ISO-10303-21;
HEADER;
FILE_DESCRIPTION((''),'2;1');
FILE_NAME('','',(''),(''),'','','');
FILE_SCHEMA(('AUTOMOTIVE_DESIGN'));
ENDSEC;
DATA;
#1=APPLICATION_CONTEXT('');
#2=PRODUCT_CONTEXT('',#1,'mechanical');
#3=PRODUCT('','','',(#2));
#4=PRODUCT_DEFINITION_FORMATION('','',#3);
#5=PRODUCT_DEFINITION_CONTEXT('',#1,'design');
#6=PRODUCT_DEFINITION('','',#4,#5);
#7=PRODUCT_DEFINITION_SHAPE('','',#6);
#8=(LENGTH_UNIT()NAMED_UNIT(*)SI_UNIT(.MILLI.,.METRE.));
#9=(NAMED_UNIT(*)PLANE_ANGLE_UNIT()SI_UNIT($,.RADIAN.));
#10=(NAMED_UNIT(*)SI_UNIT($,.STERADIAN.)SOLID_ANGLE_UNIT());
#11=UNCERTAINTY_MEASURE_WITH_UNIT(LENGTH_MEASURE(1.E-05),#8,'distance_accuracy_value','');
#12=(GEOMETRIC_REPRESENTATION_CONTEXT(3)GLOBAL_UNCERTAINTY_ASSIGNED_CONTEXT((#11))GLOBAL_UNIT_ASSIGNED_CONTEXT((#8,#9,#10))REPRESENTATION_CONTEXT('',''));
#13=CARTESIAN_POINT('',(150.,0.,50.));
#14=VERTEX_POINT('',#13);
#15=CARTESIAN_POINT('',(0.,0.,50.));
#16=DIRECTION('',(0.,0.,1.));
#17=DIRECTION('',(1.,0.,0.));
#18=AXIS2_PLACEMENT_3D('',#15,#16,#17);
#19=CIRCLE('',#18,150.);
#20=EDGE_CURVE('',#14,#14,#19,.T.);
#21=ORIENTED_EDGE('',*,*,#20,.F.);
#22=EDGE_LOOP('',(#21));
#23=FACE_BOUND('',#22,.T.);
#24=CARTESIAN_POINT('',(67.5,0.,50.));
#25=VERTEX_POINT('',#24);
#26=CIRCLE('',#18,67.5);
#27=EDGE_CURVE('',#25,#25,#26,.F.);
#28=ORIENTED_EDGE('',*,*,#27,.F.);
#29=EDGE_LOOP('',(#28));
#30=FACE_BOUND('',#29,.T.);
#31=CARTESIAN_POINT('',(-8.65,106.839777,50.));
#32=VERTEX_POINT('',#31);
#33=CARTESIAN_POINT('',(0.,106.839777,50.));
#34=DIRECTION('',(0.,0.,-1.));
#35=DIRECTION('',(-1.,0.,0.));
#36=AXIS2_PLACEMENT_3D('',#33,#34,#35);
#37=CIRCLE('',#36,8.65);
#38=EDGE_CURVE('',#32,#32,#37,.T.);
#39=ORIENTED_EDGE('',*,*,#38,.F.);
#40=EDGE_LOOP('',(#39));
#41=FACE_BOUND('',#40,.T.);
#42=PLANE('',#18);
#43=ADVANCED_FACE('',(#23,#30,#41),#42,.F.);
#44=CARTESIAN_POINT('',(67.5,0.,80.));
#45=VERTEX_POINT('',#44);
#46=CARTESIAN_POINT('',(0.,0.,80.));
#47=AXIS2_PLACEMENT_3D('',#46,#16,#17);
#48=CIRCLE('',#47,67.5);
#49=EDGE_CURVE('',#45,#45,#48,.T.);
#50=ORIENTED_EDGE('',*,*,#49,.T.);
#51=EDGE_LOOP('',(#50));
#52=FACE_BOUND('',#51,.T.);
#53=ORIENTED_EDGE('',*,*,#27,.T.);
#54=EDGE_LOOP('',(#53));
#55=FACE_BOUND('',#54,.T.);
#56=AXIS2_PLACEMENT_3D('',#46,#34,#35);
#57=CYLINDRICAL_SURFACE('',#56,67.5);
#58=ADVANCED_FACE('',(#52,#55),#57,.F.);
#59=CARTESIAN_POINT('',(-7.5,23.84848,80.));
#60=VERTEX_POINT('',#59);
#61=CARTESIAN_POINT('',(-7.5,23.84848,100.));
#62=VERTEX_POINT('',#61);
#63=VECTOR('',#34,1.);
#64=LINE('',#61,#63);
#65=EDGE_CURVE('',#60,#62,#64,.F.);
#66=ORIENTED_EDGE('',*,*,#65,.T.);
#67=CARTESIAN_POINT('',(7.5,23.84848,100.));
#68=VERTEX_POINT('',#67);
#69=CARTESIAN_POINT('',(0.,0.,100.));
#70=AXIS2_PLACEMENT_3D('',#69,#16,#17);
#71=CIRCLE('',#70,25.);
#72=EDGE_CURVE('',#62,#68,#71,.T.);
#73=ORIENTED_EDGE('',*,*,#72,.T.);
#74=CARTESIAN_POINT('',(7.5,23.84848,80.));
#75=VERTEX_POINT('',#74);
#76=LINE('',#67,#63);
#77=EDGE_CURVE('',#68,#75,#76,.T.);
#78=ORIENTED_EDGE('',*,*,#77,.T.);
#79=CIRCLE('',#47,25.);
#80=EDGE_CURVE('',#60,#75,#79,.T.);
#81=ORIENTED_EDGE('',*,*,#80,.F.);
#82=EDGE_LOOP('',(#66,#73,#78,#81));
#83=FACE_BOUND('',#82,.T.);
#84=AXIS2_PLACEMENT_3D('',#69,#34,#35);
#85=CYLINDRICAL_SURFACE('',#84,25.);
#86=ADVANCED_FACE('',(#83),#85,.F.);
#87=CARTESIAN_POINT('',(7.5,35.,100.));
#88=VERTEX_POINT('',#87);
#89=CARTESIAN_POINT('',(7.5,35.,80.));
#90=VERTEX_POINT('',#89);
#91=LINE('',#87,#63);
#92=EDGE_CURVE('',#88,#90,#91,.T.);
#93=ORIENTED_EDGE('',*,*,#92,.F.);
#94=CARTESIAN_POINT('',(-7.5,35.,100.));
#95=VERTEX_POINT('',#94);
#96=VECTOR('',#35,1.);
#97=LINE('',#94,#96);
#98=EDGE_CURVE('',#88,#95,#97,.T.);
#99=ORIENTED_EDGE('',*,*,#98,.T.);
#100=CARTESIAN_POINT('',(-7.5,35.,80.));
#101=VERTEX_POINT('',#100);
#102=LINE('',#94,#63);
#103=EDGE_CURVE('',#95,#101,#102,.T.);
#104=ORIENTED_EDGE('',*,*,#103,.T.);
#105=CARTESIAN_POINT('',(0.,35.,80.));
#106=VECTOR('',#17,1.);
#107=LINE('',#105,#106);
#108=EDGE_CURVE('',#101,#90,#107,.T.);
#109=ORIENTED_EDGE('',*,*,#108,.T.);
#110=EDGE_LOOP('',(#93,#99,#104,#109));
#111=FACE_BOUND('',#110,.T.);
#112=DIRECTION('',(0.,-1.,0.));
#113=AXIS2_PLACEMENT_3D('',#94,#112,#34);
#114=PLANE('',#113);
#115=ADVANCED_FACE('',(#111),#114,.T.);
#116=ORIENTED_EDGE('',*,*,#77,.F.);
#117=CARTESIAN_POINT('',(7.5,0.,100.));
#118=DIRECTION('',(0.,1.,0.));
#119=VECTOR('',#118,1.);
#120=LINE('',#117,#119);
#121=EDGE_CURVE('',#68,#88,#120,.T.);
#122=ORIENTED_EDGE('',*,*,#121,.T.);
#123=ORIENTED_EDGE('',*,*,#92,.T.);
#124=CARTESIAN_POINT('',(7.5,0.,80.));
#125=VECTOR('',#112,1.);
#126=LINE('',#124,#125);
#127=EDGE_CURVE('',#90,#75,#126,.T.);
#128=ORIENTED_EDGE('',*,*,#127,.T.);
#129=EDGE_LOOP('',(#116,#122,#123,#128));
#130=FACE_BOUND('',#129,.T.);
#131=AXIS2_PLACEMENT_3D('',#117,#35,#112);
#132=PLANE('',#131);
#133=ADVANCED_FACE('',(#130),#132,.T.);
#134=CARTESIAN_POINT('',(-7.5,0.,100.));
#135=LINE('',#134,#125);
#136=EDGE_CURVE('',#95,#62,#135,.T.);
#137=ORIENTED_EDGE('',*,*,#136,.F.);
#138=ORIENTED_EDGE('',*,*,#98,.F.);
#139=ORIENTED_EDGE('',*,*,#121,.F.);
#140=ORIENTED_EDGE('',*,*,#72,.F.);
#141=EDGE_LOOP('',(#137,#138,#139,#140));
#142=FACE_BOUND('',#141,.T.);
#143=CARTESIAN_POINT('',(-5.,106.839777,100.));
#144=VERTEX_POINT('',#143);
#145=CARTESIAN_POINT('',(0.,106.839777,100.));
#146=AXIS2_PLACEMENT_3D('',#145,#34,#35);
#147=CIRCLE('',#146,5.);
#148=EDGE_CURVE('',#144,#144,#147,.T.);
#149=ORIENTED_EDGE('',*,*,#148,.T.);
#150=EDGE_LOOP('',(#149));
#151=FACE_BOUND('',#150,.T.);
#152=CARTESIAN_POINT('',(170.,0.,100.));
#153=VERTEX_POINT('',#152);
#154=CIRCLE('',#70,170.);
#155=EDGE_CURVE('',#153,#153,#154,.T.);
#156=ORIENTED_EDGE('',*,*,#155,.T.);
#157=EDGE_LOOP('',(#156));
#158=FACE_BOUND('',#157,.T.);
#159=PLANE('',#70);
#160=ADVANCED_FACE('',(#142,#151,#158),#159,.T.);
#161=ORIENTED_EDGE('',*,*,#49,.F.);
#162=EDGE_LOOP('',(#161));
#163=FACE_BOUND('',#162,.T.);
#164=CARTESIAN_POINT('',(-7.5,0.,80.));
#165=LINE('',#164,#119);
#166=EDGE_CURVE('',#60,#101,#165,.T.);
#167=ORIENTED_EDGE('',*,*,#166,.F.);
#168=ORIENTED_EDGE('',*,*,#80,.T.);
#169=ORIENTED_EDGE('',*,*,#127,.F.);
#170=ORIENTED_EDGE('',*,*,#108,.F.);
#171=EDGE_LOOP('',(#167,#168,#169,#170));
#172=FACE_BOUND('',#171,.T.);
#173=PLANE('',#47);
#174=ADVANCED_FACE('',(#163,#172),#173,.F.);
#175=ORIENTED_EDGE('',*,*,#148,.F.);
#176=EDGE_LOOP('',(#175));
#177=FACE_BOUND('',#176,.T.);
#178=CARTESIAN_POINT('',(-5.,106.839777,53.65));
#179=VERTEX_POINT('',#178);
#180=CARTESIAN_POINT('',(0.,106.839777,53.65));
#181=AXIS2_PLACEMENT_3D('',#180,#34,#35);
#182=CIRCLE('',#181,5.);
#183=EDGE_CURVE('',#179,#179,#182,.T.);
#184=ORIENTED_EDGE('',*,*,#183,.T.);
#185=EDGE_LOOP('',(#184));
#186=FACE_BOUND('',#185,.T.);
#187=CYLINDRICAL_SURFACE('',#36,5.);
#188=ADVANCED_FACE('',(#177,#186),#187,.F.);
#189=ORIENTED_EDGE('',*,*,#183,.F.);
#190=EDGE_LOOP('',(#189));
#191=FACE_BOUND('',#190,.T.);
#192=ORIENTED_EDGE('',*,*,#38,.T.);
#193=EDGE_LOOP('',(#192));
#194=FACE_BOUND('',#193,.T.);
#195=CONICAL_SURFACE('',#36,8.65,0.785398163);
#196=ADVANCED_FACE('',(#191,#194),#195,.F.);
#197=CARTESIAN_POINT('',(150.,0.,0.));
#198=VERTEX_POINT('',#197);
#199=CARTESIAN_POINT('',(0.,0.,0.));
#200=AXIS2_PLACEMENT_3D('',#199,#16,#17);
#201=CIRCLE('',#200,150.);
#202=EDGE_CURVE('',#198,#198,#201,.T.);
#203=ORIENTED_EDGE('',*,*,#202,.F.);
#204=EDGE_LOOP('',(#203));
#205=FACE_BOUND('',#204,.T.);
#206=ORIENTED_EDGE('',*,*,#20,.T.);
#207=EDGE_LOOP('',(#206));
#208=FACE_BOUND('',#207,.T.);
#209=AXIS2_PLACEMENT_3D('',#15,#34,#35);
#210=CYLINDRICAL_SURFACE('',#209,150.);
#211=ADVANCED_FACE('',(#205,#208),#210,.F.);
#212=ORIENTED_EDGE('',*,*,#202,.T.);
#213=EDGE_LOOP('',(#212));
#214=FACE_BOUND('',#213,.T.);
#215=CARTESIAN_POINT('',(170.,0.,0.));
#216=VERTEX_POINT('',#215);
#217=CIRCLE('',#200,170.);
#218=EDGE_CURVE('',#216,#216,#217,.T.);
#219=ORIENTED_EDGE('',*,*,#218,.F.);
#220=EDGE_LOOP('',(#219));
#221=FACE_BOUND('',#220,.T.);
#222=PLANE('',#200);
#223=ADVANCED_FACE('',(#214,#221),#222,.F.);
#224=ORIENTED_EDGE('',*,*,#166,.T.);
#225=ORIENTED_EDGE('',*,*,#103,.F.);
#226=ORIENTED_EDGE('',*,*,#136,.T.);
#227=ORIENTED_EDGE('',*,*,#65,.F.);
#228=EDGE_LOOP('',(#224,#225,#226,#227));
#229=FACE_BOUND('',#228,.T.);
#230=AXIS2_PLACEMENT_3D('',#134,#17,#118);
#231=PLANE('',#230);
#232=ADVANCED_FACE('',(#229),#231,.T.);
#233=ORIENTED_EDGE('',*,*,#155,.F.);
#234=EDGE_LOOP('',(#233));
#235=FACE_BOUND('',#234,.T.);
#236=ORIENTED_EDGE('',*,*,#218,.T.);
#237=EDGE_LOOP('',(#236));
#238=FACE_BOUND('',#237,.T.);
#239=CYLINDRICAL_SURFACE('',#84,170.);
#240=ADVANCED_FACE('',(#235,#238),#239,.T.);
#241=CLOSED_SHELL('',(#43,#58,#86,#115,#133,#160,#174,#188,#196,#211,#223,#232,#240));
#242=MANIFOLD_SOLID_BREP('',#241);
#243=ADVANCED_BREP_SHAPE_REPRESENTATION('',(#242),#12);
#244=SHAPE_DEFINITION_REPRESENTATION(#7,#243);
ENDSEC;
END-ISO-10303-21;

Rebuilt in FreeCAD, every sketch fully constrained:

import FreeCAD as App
import Part
import Sketcher

V = App.Vector

doc = App.newDocument("Part")
body = doc.addObject("PartDesign::Body", "Body")

# Sketch on XY plane
sketch1 = body.newObject("Sketcher::SketchObject", "Sketch")
sketch1.AttachmentSupport = (doc.getObject("XY_Plane"), [""])
sketch1.MapMode = "FlatFace"
sketch1.addGeometry([
    Part.Circle(V(0, 0, 0), V(0, 0, 1), 170),
    Part.Circle(V(0, 0, 0), V(0, 0, 1), 25),
], False)
sketch1.addConstraint([
    Sketcher.Constraint("Coincident", 0, 3, -1, 1),
    Sketcher.Constraint("Coincident", 1, 3, -1, 1),
    Sketcher.Constraint("Diameter", 0, 340.0),
    Sketcher.Constraint("Diameter", 1, 50.0),
])
pad1 = body.newObject("PartDesign::Pad", "Pad")
pad1.Profile = sketch1
pad1.Length = 100

# Sketch on XY plane
sketch2 = body.newObject("Sketcher::SketchObject", "Sketch001")
sketch2.AttachmentSupport = (doc.getObject("XY_Plane"), [""])
sketch2.MapMode = "FlatFace"
sketch2.addGeometry(Part.Circle(V(0, 0, 0), V(0, 0, 1), 150), False)
sketch2.addConstraint([
    Sketcher.Constraint("Coincident", 0, 3, -1, 1),
    Sketcher.Constraint("Diameter", 0, 300.0),
])
pocket1 = body.newObject("PartDesign::Pocket", "Pocket")
pocket1.Profile = sketch2
pocket1.Length = 50
pocket1.Reversed = True

# Sketch on XY plane
sketch3 = body.newObject("Sketcher::SketchObject", "Sketch002")
sketch3.AttachmentSupport = (doc.getObject("XY_Plane"), [""])
sketch3.MapMode = "FlatFace"
sketch3.addGeometry(Part.Circle(V(0, 0, 0), V(0, 0, 1), 67.5), False)
sketch3.addConstraint([
    Sketcher.Constraint("Coincident", 0, 3, -1, 1),
    Sketcher.Constraint("Diameter", 0, 135.0),
])
pocket2 = body.newObject("PartDesign::Pocket", "Pocket001")
pocket2.Profile = sketch3
pocket2.Length = 80
pocket2.Reversed = True

# Sketch on XY plane
sketch4 = body.newObject("Sketcher::SketchObject", "Sketch003")
sketch4.AttachmentSupport = (doc.getObject("XY_Plane"), [""])
sketch4.MapMode = "FlatFace"
sketch4.addGeometry([
    Part.LineSegment(V(-7.5, 35, 0), V(-7.5, 0, 0)),
    Part.LineSegment(V(-7.5, 0, 0), V(7.5, 0, 0)),
    Part.LineSegment(V(7.5, 0, 0), V(7.5, 35, 0)),
    Part.LineSegment(V(7.5, 35, 0), V(-7.5, 35, 0)),
], False)
sketch4.addConstraint([
    Sketcher.Constraint("Coincident", 0, 2, 1, 1),
    Sketcher.Constraint("Coincident", 1, 2, 2, 1),
    Sketcher.Constraint("Coincident", 2, 2, 3, 1),
    Sketcher.Constraint("Coincident", 3, 2, 0, 1),
    Sketcher.Constraint("Vertical", 0),
    Sketcher.Constraint("Horizontal", 1),
    Sketcher.Constraint("Vertical", 2),
    Sketcher.Constraint("Horizontal", 3),
    Sketcher.Constraint("Symmetric", 0, 2, 1, 2, -1, 1),
    Sketcher.Constraint("DistanceX", 1, 1, 1, 2, 15.0),
    Sketcher.Constraint("DistanceY", 0, 2, 0, 1, 35.0),
])
pocket3 = body.newObject("PartDesign::Pocket", "Pocket002")
pocket3.Profile = sketch4
pocket3.Type = "ThroughAll"
pocket3.Reversed = True

# Sketch on XY plane
sketch5 = body.newObject("Sketcher::SketchObject", "Sketch004")
sketch5.AttachmentSupport = (doc.getObject("XY_Plane"), [""])
sketch5.MapMode = "FlatFace"
sketch5.AttachmentOffset = App.Placement(V(0, 0, 50), App.Rotation())
sketch5.addGeometry(Part.Circle(V(0, 106.839777, 0), V(0, 0, 1), 5), False)
sketch5.addConstraint([
    Sketcher.Constraint("PointOnObject", 0, 3, -2),
    Sketcher.Constraint("Diameter", 0, 10.0),
    Sketcher.Constraint("DistanceY", -1, 1, 0, 3, 106.839777),
])
doc.recompute()
hole = body.newObject("PartDesign::Hole", "Hole")
hole.Profile = sketch5
hole.ThreadType = "None"
hole.Diameter = 10
hole.DepthType = "ThroughAll"
hole.HoleCutType = "Countersink"
hole.HoleCutDiameter = 17.3
hole.HoleCutCountersinkAngle = 90
hole.Reversed = True

doc.recompute()
